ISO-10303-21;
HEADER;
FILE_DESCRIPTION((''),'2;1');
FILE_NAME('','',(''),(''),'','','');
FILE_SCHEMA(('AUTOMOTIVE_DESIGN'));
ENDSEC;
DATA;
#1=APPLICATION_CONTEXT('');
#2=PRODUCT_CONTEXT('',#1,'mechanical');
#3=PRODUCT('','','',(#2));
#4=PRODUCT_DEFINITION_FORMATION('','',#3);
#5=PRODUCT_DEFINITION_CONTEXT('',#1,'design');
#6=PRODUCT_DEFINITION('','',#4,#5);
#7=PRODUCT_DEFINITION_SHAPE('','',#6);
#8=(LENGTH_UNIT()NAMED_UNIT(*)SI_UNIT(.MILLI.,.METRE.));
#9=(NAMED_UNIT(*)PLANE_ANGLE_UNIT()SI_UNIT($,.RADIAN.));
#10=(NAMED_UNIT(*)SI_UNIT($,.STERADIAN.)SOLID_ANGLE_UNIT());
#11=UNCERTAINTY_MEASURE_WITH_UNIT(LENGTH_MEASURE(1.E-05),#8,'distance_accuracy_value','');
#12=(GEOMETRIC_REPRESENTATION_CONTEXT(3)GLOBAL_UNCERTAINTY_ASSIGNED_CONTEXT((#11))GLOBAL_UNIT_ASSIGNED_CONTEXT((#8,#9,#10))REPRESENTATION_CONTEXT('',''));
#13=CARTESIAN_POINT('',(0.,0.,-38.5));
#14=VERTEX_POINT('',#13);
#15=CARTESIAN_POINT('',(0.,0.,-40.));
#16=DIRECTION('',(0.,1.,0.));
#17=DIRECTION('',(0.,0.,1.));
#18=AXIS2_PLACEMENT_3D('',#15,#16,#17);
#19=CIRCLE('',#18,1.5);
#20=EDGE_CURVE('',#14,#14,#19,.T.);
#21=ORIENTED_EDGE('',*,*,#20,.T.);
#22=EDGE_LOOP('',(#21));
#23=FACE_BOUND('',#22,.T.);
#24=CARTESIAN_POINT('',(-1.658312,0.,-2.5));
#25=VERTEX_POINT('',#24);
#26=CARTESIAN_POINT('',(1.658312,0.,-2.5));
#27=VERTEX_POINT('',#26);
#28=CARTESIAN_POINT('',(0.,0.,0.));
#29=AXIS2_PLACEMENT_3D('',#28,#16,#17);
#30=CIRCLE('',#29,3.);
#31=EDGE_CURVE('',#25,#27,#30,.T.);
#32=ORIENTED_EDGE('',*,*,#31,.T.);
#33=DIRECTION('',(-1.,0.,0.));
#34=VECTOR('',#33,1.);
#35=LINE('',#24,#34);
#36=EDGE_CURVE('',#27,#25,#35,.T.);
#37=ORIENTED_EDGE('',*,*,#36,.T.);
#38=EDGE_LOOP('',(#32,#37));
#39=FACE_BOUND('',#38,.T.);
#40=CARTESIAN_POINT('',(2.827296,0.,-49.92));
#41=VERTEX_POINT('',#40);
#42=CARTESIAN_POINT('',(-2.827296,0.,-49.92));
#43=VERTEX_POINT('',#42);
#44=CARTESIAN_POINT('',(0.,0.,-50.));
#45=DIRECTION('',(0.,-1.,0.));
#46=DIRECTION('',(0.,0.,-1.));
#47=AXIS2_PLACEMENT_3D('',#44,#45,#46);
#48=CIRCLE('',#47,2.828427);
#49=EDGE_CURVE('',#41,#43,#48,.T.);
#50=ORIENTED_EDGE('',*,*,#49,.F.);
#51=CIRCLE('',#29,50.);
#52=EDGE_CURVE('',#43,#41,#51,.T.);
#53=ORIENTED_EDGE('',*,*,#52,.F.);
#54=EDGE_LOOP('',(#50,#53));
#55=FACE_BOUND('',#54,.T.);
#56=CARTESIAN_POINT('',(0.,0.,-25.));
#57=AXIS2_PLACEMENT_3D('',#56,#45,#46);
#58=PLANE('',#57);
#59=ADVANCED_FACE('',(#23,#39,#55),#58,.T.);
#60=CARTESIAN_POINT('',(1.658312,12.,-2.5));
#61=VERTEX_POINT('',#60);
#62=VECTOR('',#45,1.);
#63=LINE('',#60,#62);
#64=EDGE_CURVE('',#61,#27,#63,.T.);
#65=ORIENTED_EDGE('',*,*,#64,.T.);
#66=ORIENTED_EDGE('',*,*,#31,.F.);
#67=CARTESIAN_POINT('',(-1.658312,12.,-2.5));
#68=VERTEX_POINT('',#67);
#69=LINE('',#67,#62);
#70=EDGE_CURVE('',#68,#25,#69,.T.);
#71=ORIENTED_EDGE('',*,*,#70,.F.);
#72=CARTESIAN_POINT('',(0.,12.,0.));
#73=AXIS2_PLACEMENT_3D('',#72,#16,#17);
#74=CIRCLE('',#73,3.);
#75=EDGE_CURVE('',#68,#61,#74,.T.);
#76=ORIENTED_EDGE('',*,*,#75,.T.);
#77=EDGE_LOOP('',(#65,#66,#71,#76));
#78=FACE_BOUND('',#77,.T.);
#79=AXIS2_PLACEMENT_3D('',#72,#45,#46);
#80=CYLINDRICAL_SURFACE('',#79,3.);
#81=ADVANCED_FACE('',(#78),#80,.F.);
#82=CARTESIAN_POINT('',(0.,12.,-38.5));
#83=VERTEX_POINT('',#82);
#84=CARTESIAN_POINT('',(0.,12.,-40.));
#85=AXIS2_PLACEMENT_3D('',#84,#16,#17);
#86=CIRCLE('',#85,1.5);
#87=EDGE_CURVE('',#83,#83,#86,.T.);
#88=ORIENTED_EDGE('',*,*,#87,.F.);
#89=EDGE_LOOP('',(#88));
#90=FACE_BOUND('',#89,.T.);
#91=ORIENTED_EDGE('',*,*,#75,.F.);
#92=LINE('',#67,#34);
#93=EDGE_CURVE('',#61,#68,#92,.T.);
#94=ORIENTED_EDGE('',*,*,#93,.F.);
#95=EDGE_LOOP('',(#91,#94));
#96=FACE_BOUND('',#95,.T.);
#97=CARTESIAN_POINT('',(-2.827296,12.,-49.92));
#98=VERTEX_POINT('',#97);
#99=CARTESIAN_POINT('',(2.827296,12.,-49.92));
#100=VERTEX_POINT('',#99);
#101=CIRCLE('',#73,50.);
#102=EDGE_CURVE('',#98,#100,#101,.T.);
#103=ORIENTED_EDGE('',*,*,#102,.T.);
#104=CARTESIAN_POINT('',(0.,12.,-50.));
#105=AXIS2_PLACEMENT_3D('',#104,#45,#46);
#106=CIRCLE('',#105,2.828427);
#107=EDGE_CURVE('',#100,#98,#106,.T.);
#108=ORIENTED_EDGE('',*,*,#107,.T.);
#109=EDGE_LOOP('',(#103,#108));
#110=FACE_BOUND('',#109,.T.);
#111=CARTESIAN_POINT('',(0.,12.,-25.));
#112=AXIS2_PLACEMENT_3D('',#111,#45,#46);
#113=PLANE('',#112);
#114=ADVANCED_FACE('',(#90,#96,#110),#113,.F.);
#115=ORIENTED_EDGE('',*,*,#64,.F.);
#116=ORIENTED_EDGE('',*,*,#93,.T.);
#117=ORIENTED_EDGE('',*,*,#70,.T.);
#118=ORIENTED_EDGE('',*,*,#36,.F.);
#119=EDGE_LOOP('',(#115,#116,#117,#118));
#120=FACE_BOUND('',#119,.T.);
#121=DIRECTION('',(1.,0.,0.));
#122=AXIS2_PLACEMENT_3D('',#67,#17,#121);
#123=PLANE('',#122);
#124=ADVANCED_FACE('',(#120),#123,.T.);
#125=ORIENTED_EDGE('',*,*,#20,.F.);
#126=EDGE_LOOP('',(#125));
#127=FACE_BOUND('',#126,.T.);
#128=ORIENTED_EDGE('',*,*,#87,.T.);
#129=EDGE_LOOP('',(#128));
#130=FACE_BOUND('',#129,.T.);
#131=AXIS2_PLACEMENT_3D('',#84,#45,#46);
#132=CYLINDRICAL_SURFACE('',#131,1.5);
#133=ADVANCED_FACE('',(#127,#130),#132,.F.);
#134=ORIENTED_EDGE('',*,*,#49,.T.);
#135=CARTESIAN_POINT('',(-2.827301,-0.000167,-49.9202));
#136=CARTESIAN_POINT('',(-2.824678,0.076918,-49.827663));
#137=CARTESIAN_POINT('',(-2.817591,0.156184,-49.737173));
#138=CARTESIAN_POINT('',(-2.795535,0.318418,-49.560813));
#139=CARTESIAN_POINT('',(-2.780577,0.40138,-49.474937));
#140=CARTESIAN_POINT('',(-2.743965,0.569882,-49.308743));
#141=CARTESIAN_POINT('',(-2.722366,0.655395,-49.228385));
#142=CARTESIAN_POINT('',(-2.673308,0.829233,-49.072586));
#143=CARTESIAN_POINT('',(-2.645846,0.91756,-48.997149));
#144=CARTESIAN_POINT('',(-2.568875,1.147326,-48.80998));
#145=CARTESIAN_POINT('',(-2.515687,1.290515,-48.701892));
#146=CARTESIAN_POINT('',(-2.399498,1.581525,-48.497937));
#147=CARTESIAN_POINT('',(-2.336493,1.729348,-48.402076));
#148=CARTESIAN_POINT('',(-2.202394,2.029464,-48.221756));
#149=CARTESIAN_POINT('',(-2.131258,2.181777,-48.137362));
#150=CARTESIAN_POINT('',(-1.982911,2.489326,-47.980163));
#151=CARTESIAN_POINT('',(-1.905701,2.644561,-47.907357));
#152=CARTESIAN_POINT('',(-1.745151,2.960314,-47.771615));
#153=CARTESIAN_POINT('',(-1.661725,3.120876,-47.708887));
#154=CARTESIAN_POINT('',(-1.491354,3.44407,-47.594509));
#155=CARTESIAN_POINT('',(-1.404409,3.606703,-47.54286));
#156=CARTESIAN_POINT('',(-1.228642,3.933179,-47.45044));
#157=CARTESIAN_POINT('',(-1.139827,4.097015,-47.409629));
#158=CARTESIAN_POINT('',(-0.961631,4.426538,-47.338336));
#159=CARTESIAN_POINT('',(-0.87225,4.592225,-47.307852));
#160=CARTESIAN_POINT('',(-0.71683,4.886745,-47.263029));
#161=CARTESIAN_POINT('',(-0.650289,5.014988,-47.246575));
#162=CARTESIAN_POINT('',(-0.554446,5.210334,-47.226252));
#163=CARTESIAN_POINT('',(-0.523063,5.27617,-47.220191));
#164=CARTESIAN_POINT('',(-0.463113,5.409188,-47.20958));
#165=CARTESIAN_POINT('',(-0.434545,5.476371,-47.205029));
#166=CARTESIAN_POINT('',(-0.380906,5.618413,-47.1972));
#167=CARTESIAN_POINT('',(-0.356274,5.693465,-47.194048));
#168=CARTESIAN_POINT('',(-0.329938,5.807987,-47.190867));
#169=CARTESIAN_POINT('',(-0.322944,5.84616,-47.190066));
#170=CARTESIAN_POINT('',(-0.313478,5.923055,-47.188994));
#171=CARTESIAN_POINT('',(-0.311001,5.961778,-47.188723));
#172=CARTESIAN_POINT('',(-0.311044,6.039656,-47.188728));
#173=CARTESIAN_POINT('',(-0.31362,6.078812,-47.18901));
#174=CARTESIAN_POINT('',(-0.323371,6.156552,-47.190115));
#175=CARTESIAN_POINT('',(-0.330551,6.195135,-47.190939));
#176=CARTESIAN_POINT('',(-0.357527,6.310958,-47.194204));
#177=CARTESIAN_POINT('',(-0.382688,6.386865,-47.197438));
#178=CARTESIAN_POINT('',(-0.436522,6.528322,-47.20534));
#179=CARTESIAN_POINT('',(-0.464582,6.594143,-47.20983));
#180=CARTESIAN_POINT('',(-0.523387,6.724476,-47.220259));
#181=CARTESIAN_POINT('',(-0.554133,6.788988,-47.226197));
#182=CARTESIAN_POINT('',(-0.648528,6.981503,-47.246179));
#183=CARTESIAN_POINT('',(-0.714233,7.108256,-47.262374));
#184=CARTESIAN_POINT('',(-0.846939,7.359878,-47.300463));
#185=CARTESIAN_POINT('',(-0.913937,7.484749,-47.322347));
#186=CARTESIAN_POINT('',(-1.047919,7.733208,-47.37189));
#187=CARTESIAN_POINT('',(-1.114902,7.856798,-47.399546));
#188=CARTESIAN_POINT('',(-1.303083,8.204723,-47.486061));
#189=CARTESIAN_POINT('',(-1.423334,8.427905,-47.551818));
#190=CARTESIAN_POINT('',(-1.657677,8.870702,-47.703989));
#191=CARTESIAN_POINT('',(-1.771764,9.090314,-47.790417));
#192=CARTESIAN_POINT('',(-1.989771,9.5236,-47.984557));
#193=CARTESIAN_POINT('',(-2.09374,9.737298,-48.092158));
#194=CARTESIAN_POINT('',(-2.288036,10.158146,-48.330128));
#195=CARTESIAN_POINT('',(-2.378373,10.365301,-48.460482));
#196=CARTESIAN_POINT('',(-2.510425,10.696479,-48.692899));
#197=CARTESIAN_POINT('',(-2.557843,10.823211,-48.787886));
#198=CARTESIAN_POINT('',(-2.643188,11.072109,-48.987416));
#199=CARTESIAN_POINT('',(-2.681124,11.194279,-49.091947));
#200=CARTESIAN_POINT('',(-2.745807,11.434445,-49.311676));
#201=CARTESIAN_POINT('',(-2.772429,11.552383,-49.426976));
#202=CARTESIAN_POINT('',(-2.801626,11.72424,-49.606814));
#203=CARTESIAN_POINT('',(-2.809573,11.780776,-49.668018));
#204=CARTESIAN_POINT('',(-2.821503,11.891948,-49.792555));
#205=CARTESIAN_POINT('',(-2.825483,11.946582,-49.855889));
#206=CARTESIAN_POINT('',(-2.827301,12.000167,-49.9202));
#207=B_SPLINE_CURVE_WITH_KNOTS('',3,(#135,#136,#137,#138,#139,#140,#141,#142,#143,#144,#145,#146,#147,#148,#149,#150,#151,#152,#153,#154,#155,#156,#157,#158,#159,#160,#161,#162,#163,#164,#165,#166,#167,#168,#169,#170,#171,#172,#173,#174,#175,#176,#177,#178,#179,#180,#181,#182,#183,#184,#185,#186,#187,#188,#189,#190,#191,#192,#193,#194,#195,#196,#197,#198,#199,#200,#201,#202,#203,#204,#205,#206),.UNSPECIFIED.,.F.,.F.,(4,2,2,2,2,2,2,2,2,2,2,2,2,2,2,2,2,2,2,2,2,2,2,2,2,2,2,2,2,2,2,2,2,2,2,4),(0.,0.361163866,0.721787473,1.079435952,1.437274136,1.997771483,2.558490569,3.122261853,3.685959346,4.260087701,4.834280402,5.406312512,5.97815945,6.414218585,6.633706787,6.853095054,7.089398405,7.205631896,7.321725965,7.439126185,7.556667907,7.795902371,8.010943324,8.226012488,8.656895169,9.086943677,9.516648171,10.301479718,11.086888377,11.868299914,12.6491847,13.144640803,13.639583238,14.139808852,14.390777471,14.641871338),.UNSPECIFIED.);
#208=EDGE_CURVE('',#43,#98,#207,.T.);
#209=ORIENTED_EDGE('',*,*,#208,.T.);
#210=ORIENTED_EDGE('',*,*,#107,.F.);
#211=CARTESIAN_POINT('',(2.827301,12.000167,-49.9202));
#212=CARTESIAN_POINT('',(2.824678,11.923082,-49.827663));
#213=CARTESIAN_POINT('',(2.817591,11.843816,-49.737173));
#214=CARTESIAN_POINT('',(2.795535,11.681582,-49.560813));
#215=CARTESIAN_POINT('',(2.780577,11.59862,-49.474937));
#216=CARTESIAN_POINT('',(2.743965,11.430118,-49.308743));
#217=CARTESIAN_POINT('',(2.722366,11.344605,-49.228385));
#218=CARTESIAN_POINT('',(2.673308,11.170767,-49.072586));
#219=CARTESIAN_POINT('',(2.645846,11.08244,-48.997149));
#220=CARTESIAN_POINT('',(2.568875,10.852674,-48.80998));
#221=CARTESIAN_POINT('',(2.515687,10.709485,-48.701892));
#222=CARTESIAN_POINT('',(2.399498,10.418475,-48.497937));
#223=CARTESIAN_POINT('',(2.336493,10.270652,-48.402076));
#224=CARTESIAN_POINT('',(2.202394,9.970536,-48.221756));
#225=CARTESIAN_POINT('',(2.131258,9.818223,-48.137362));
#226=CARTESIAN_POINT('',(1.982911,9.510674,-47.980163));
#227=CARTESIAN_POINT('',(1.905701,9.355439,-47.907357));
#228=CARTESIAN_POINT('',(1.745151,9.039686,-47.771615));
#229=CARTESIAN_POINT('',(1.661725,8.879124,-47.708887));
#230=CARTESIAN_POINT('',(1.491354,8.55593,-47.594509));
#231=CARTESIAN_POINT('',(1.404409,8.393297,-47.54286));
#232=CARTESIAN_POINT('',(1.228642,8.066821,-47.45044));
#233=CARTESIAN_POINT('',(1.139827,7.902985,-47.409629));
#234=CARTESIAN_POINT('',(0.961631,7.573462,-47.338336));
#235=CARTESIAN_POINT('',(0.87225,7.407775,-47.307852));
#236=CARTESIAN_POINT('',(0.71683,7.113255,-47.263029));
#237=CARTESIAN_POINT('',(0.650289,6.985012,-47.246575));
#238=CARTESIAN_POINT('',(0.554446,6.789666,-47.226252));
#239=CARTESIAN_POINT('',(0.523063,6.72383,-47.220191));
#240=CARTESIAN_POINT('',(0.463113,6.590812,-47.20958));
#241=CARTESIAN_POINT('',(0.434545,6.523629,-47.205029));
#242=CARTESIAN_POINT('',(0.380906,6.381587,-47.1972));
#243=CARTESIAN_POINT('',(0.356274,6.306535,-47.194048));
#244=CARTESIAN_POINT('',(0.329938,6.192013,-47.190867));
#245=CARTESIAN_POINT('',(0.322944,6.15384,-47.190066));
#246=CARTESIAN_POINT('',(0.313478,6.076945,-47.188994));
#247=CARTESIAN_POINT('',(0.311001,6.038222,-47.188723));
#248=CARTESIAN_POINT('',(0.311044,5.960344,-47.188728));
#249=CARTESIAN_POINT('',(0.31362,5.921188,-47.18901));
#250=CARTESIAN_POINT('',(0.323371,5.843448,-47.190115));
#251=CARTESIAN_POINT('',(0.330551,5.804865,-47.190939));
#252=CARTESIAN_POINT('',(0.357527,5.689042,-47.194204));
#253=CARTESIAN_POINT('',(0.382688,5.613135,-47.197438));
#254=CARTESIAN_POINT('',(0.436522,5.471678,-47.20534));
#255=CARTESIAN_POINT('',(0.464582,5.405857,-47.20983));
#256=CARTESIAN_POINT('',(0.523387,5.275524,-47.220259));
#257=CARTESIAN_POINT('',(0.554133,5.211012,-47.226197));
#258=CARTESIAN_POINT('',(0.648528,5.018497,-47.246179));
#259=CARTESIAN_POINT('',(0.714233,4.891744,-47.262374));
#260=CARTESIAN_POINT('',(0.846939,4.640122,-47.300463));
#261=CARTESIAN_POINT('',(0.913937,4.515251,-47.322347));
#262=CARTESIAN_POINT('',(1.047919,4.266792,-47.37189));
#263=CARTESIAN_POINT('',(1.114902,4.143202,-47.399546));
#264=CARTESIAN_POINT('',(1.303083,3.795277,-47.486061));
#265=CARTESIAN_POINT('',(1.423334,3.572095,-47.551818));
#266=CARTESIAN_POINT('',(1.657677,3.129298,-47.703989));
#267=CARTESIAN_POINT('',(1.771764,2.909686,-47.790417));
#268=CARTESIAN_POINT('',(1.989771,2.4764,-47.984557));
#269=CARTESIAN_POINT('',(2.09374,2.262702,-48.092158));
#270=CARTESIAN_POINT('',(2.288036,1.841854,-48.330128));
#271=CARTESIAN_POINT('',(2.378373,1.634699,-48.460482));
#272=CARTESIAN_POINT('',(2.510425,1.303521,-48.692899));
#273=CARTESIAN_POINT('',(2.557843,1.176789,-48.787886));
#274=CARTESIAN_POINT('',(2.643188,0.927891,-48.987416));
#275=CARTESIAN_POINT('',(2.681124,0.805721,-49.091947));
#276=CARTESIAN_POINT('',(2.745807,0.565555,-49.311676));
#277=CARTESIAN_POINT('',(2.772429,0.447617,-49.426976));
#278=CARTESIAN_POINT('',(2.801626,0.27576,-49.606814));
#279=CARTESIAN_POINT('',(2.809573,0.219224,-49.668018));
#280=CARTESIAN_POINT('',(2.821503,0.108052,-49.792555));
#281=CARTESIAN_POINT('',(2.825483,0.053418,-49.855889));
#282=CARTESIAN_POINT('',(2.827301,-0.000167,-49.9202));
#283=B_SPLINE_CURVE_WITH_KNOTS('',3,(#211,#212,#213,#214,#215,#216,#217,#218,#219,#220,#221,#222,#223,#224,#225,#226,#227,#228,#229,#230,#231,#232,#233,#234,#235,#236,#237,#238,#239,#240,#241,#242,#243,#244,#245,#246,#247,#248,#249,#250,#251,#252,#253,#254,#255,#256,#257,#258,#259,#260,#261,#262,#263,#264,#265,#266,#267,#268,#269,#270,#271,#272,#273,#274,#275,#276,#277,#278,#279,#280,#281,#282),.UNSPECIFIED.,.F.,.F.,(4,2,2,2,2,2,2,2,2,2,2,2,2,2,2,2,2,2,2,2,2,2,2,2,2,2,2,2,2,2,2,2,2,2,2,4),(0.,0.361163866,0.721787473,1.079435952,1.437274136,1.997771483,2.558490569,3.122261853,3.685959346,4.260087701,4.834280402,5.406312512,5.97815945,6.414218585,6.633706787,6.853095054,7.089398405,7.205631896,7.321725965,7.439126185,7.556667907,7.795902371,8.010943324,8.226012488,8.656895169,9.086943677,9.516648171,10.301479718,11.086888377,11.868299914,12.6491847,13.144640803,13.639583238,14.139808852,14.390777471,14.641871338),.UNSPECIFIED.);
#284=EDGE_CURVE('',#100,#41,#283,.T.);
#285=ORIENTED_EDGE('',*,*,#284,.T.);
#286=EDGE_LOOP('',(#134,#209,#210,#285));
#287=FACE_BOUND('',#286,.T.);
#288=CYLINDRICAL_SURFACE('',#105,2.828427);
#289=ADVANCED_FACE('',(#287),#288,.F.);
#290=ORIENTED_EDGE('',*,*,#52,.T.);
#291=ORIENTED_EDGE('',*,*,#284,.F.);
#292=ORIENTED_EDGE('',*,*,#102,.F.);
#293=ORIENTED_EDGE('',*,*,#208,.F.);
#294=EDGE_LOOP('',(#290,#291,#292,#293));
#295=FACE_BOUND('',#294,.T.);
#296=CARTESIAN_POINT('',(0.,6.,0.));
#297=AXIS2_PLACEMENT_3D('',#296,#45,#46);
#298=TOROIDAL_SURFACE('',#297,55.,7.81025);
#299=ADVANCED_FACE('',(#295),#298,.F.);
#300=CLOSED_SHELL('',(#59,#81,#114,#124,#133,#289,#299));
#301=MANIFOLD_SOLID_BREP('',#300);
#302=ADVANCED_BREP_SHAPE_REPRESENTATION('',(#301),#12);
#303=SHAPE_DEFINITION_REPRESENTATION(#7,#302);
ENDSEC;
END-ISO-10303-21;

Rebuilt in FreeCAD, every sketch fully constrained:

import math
import FreeCAD as App
import Part
import Sketcher

V = App.Vector

doc = App.newDocument("Part")
body = doc.addObject("PartDesign::Body", "Body")

# Sketch on XZ plane
sketch1 = body.newObject("Sketcher::SketchObject", "Sketch")
sketch1.AttachmentSupport = (doc.getObject("XZ_Plane"), [""])
sketch1.MapMode = "FlatFace"
sketch1.addGeometry(Part.ArcOfCircle(Part.Circle(V(0, -50, 0), V(0, 0, 1), 2.8), math.radians(2), math.radians(178)), False)
sketch1.addGeometry(Part.ArcOfCircle(Part.Circle(V(0, 0, 0), V(0, 0, 1), 50), math.radians(-87), math.radians(267)), False)
sketch1.addGeometry(Part.LineSegment(V(-1.7, -2.5, 0), V(1.7, -2.5, 0)), False)
sketch1.addGeometry(Part.ArcOfCircle(Part.Circle(V(0, 0, 0), V(0, 0, 1), 3), math.radians(-56), math.radians(236)), False)
sketch1.addGeometry(Part.Circle(V(0, -40, 0), V(0, 0, 1), 1.5), False)
sketch1.addConstraint(Sketcher.Constraint("Coincident", 0, 1, 1, 1))
sketch1.addConstraint(Sketcher.Constraint("Coincident", 1, 2, 0, 2))
sketch1.addConstraint(Sketcher.Constraint("Coincident", 2, 1, 3, 2))
sketch1.addConstraint(Sketcher.Constraint("Coincident", 3, 1, 2, 2))
sketch1.addConstraint(Sketcher.Constraint("Horizontal", 2))
sketch1.addConstraint(Sketcher.Constraint("Coincident", 1, 3, -1, 1))
sketch1.addConstraint(Sketcher.Constraint("Coincident", 3, 3, -1, 1))
sketch1.addConstraint(Sketcher.Constraint("PointOnObject", 0, 3, -2))
sketch1.addConstraint(Sketcher.Constraint("PointOnObject", 4, 3, -2))
sketch1.addConstraint(Sketcher.Constraint("Diameter", 4, 3.0))
sketch1.addConstraint(Sketcher.Constraint("Radius", 1, 50.0))
sketch1.addConstraint(Sketcher.Constraint("Radius", 3, 3.0))
sketch1.addConstraint(Sketcher.Constraint("DistanceY", 0, 3, -1, 1, 50.0))
sketch1.addConstraint(Sketcher.Constraint("DistanceY", 4, 3, -1, 1, 40.0))
sketch1.addConstraint(Sketcher.Constraint("DistanceY", 2, 1, -1, 1, 2.5))
sketch1.addConstraint(Sketcher.Constraint("DistanceY", 0, 1, -1, 1, 49.92))
pad1 = body.newObject("PartDesign::Pad", "Pad")
pad1.Profile = sketch1
pad1.Length = 12
pad1.Reversed = True

# Sketch on XY plane
sketch2 = body.newObject("Sketcher::SketchObject", "Sketch001")
sketch2.AttachmentSupport = (doc.getObject("XY_Plane"), [""])
sketch2.MapMode = "FlatFace"
sketch2.addGeometry(Part.Circle(V(55, 6, 0), V(0, 0, 1), 8), False)
sketch2.addConstraint(Sketcher.Constraint("DistanceX", -1, 1, 0, 3, 55.0))
sketch2.addConstraint(Sketcher.Constraint("DistanceY", -1, 1, 0, 3, 6.0))
sketch2.addConstraint(Sketcher.Constraint("Diameter", 0, 15.620499))
groove = body.newObject("PartDesign::Groove", "Groove")
groove.Profile = sketch2
groove.ReferenceAxis = (sketch2, ["V_Axis"])
groove.Angle = 360

doc.recompute()
